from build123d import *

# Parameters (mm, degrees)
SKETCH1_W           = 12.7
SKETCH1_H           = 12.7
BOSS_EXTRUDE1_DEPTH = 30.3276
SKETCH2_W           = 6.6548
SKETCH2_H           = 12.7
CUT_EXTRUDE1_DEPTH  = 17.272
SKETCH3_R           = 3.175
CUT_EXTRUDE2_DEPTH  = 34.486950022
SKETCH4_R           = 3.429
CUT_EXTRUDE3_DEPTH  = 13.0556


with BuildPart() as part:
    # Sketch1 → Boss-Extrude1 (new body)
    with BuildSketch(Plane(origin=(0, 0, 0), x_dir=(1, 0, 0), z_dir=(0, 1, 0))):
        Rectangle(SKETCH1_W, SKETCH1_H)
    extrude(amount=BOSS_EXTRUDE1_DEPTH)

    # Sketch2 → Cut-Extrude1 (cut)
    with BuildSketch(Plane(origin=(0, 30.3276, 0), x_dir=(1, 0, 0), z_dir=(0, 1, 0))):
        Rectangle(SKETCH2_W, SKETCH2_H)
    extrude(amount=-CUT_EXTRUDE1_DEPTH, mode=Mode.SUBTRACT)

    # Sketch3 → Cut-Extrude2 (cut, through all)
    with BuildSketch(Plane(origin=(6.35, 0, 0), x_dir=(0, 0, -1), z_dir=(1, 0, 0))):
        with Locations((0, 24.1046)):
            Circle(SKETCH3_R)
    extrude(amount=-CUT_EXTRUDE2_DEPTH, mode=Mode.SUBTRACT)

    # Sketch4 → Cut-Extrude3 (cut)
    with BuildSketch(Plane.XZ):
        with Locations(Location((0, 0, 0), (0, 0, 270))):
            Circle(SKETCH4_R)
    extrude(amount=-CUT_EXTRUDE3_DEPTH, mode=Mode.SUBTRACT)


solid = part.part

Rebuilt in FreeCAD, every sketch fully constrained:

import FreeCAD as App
import Part
import Sketcher

V = App.Vector
Q = App.Units.Quantity


def add_polygon(sketch, points):
    """Adds a closed chain of lines whose ends are joined by coincident constraints."""
    first, n = sketch.GeometryCount, len(points)
    for a, b in zip(points, points[1:] + points[:1]):
        sketch.addGeometry(Part.LineSegment(App.Vector(*a, 0), App.Vector(*b, 0)), False)
    for i in range(n):
        sketch.addConstraint(Sketcher.Constraint("Coincident", first + i, 2, first + (i + 1) % n, 1))

doc = App.newDocument("Part")
body = doc.addObject("PartDesign::Body", "Body")

# Sketch on XZ plane
sketch1 = body.newObject("Sketcher::SketchObject", "Sketch")
sketch1.AttachmentSupport = (doc.getObject("XZ_Plane"), [""])
sketch1.MapMode = "FlatFace"
add_polygon(sketch1, [(-6.35, -6.35), (-6.35, 6.35), (6.35, 6.35), (6.35, -6.35)])  # lines 0-3
sketch1.addConstraint([
    Sketcher.Constraint("Vertical", 0),
    Sketcher.Constraint("Horizontal", 1),
    Sketcher.Constraint("Vertical", 2),
    Sketcher.Constraint("Horizontal", 3),
    Sketcher.Constraint("Symmetric", 0, 2, 2, 2, -1, 1),
    Sketcher.Constraint("Equal", 3, 0),
    Sketcher.Constraint("DistanceX", 1, 1, 1, 2, Q("0.5 in")),
])
pad1 = body.newObject("PartDesign::Pad", "Pad")
pad1.Profile = sketch1
pad1.Length = Q("1.194 in")
pad1.Reversed = True

# Sketch on XZ plane
sketch2 = body.newObject("Sketcher::SketchObject", "Sketch001")
sketch2.AttachmentSupport = (doc.getObject("XZ_Plane"), [""])
sketch2.MapMode = "FlatFace"
sketch2.AttachmentOffset = App.Placement(V(0, 0, -1.194 * 25.4), App.Rotation())
add_polygon(sketch2, [(-3.3274, -6.35), (-3.3274, 6.35), (3.3274, 6.35), (3.3274, -6.35)])  # lines 0-3
sketch2.addConstraint([
    Sketcher.Constraint("Vertical", 0),
    Sketcher.Constraint("Horizontal", 1),
    Sketcher.Constraint("Vertical", 2),
    Sketcher.Constraint("Horizontal", 3),
    Sketcher.Constraint("Symmetric", 0, 2, 2, 2, -1, 1),
    Sketcher.Constraint("DistanceY", 0, 1, 0, 2, Q("0.5 in")),
    Sketcher.Constraint("DistanceX", 1, 1, 1, 2, Q("0.262 in")),
])
pocket1 = body.newObject("PartDesign::Pocket", "Pocket")
pocket1.Profile = sketch2
pocket1.Length = Q("0.68 in")
pocket1.Reversed = True

# Sketch on YZ plane
sketch3 = body.newObject("Sketcher::SketchObject", "Sketch002")
sketch3.AttachmentSupport = (doc.getObject("YZ_Plane"), [""])
sketch3.MapMode = "FlatFace"
sketch3.AttachmentOffset = App.Placement(V(0, 0, 0.25 * 25.4), App.Rotation())
sketch3.addGeometry(Part.Circle(V(24.1046, 0, 0), V(0, 0, 1), 3.175), False)
sketch3.addConstraint([
    Sketcher.Constraint("PointOnObject", 0, 3, -1),
    Sketcher.Constraint("Diameter", 0, Q("0.25 in")),
    Sketcher.Constraint("DistanceX", -1, 1, 0, 3, Q("0.949 in")),
])
pocket2 = body.newObject("PartDesign::Pocket", "Pocket001")
pocket2.Profile = sketch3
pocket2.Type = "ThroughAll"

# Sketch on XZ plane
sketch4 = body.newObject("Sketcher::SketchObject", "Sketch003")
sketch4.AttachmentSupport = (doc.getObject("XZ_Plane"), [""])
sketch4.MapMode = "FlatFace"
sketch4.addGeometry(Part.Circle(V(0, 0, 0), V(0, 0, 1), 3.429), False)
sketch4.addConstraint([
    Sketcher.Constraint("Coincident", 0, 3, -1, 1),
    Sketcher.Constraint("Diameter", 0, Q("0.27 in")),
])
pocket3 = body.newObject("PartDesign::Pocket", "Pocket002")
pocket3.Profile = sketch4
pocket3.Length = Q("0.514 in")

doc.recompute()
